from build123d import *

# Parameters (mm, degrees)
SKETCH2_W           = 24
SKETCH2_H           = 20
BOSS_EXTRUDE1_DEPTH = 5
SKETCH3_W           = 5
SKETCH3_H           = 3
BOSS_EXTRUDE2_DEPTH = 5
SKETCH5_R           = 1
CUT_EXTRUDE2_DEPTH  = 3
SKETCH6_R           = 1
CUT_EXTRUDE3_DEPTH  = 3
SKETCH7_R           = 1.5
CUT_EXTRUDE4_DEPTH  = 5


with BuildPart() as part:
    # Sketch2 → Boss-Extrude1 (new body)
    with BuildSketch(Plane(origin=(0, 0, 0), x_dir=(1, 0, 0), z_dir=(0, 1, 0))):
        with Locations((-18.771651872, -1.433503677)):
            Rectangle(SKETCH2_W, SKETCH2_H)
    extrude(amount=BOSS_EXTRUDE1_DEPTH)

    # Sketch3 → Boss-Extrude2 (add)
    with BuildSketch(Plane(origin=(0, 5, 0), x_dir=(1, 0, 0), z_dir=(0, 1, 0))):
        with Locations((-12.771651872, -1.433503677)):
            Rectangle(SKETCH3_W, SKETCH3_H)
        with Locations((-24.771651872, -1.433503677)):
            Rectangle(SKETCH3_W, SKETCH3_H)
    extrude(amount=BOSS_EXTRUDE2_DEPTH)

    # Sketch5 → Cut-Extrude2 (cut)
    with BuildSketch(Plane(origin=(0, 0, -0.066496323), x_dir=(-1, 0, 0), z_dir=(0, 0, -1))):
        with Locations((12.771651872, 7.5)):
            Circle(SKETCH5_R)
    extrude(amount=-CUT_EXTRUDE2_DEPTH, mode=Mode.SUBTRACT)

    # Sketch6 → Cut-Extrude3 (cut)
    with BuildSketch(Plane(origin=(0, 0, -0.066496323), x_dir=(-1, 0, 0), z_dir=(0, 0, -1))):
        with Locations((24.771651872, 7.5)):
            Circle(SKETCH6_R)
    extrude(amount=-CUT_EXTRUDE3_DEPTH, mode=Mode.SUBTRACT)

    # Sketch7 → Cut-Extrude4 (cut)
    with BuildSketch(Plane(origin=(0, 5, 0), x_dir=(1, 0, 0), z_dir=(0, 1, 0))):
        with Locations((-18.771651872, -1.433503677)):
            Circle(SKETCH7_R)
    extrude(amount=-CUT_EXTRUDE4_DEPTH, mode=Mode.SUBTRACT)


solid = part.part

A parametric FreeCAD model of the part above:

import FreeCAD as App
import Part
import Sketcher

V = App.Vector
Q = App.Units.Quantity

doc = App.newDocument("Part")
params = doc.addObject("Spreadsheet::Sheet", "Params")
for row, (alias, value) in enumerate([
    ("sketch1_width", "24 mm"),
    ("sketch1_height", "20 mm"),
    ("pad1_length", "5 mm"),
    ("sketch2_width", "5 mm"),
    ("sketch2_height", "3 mm"),
    ("pad2_length", "5 mm"),
    ("sketch3_diameter", "2 mm"),
    ("pocket1_length", "3 mm"),
    ("sketch4_diameter", "2 mm"),
    ("pocket2_length", "3 mm"),
    ("sketch5_diameter", "3 mm"),
    ("pocket3_length", "5 mm"),
], start=1):
    params.set(f"A{row}", alias)
    params.set(f"B{row}", "=" + value)
    params.setAlias(f"B{row}", alias)

body = doc.addObject("PartDesign::Body", "Body")

# Sketch on XZ plane
sketch1 = doc.addObject("Sketcher::SketchObject", "Sketch")
body.addObject(sketch1)
sketch1.AttachmentSupport = (doc.XZ_Plane, [""])
sketch1.MapMode = "FlatFace"
sketch1.addGeometry([
    Part.LineSegment(V(-31, -9, 0), V(-31, 11, 0)),
    Part.LineSegment(V(-31, 11, 0), V(-7, 11, 0)),
    Part.LineSegment(V(-7, 11, 0), V(-7, -9, 0)),
    Part.LineSegment(V(-7, -9, 0), V(-31, -9, 0)),
], False)
sketch1.addConstraint([
    Sketcher.Constraint("Coincident", 0, 2, 1, 1),
    Sketcher.Constraint("Coincident", 1, 2, 2, 1),
    Sketcher.Constraint("Coincident", 2, 2, 3, 1),
    Sketcher.Constraint("Coincident", 3, 2, 0, 1),
    Sketcher.Constraint("Vertical", 0),
    Sketcher.Constraint("Horizontal", 1),
    Sketcher.Constraint("Vertical", 2),
    Sketcher.Constraint("Horizontal", 3),
    Sketcher.Constraint("DistanceX", 1, 1, 1, 2, Q("24 mm")),
    Sketcher.Constraint("DistanceY", 0, 1, 0, 2, Q("20 mm")),
    Sketcher.Constraint("DistanceX", 0, 2, -1, 1, Q("30.771652 mm")),
    Sketcher.Constraint("DistanceY", -1, 1, 0, 2, Q("11.433504 mm")),
])
sketch1.setExpression("Constraints[8]", "Params.sketch1_width")
sketch1.setExpression("Constraints[9]", "Params.sketch1_height")
pad1 = doc.addObject("PartDesign::Pad", "Pad")
body.addObject(pad1)
pad1.Profile = sketch1
pad1.setExpression("Length", "Params.pad1_length")
pad1.Reversed = True

# Sketch on XZ plane
sketch2 = doc.addObject("Sketcher::SketchObject", "Sketch001")
body.addObject(sketch2)
sketch2.AttachmentSupport = (doc.XZ_Plane, [""])
sketch2.MapMode = "FlatFace"
sketch2.AttachmentOffset = App.Placement(V(0, 0, -5), App.Rotation())
sketch2.addGeometry([
    Part.LineSegment(V(-15.3, -0.1, 0), V(-15.3, 2.9, 0)),  # 0
    Part.LineSegment(V(-15.3, 2.9, 0), V(-10.3, 2.9, 0)),  # 1
    Part.LineSegment(V(-10.3, 2.9, 0), V(-10.3, -0.1, 0)),  # 2
    Part.LineSegment(V(-10.3, -0.1, 0), V(-15.3, -0.1, 0)),  # 3
    Part.LineSegment(V(-27.3, -0.1, 0), V(-27.3, 2.9, 0)),  # 4
    Part.LineSegment(V(-27.3, 2.9, 0), V(-22.3, 2.9, 0)),  # 5
    Part.LineSegment(V(-22.3, 2.9, 0), V(-22.3, -0.1, 0)),  # 6
    Part.LineSegment(V(-22.3, -0.1, 0), V(-27.3, -0.1, 0)),  # 7
], False)
sketch2.addConstraint([
    Sketcher.Constraint("Coincident", 0, 2, 1, 1),
    Sketcher.Constraint("Coincident", 1, 2, 2, 1),
    Sketcher.Constraint("Coincident", 2, 2, 3, 1),
    Sketcher.Constraint("Coincident", 3, 2, 0, 1),
    Sketcher.Constraint("Coincident", 4, 2, 5, 1),
    Sketcher.Constraint("Coincident", 5, 2, 6, 1),
    Sketcher.Constraint("Coincident", 6, 2, 7, 1),
    Sketcher.Constraint("Coincident", 7, 2, 4, 1),
    Sketcher.Constraint("Vertical", 0),
    Sketcher.Constraint("Horizontal", 1),
    Sketcher.Constraint("Vertical", 2),
    Sketcher.Constraint("Horizontal", 3),
    Sketcher.Constraint("Vertical", 4),
    Sketcher.Constraint("Horizontal", 5),
    Sketcher.Constraint("Vertical", 6),
    Sketcher.Constraint("Horizontal", 7),
    Sketcher.Constraint("Horizontal", 1, 2, 4, 2),
    Sketcher.Constraint("Horizontal", 3, 2, 6, 2),
    Sketcher.Constraint("Equal", 3, 5),
    Sketcher.Constraint("DistanceX", 1, 1, 1, 2, Q("5 mm")),
    Sketcher.Constraint("DistanceY", 0, 1, 0, 2, Q("3 mm")),
    Sketcher.Constraint("DistanceX", 4, 2, 0, 2, Q("12 mm")),
    Sketcher.Constraint("DistanceX", 0, 2, -1, 1, Q("15.271652 mm")),
    Sketcher.Constraint("DistanceY", -1, 1, 0, 2, Q("2.933504 mm")),
])
sketch2.setExpression("Constraints[19]", "Params.sketch2_width")
sketch2.setExpression("Constraints[20]", "Params.sketch2_height")
pad2 = doc.addObject("PartDesign::Pad", "Pad001")
body.addObject(pad2)
pad2.Profile = sketch2
pad2.setExpression("Length", "Params.pad2_length")
pad2.Reversed = True

# Sketch on XY plane
sketch3 = doc.addObject("Sketcher::SketchObject", "Sketch002")
body.addObject(sketch3)
sketch3.AttachmentSupport = (doc.XY_Plane, [""])
sketch3.MapMode = "FlatFace"
sketch3.AttachmentOffset = App.Placement(V(0, 0, -0.066496), App.Rotation())
sketch3.addGeometry(Part.Circle(V(-12.8, 7.5, 0), V(0, 0, 1), 1), False)
sketch3.addConstraint([
    Sketcher.Constraint("Diameter", 0, Q("2 mm")),
    Sketcher.Constraint("DistanceY", -1, 1, 0, 3, Q("7.5 mm")),
    Sketcher.Constraint("DistanceX", 0, 3, -1, 1, Q("12.771652 mm")),
])
sketch3.setExpression("Constraints[0]", "Params.sketch3_diameter")
pocket1 = doc.addObject("PartDesign::Pocket", "Pocket")
body.addObject(pocket1)
pocket1.Profile = sketch3
pocket1.setExpression("Length", "Params.pocket1_length")
pocket1.Reversed = True

# Sketch on XY plane
sketch4 = doc.addObject("Sketcher::SketchObject", "Sketch003")
body.addObject(sketch4)
sketch4.AttachmentSupport = (doc.XY_Plane, [""])
sketch4.MapMode = "FlatFace"
sketch4.AttachmentOffset = App.Placement(V(0, 0, -0.066496), App.Rotation())
sketch4.addGeometry(Part.Circle(V(-24.8, 7.5, 0), V(0, 0, 1), 1), False)
sketch4.addConstraint([
    Sketcher.Constraint("Diameter", 0, Q("2 mm")),
    Sketcher.Constraint("DistanceY", -1, 1, 0, 3, Q("7.5 mm")),
    Sketcher.Constraint("DistanceX", 0, 3, -1, 1, Q("24.771652 mm")),
])
sketch4.setExpression("Constraints[0]", "Params.sketch4_diameter")
pocket2 = doc.addObject("PartDesign::Pocket", "Pocket001")
body.addObject(pocket2)
pocket2.Profile = sketch4
pocket2.setExpression("Length", "Params.pocket2_length")
pocket2.Reversed = True

# Sketch on XZ plane
sketch5 = doc.addObject("Sketcher::SketchObject", "Sketch004")
body.addObject(sketch5)
sketch5.AttachmentSupport = (doc.XZ_Plane, [""])
sketch5.MapMode = "FlatFace"
sketch5.AttachmentOffset = App.Placement(V(0, 0, -5), App.Rotation())
sketch5.addGeometry(Part.Circle(V(-18.8, 1.4, 0), V(0, 0, 1), 1.5), False)
sketch5.addConstraint([
    Sketcher.Constraint("Diameter", 0, Q("3 mm")),
    Sketcher.Constraint("DistanceX", 0, 3, -1, 1, Q("18.771652 mm")),
    Sketcher.Constraint("DistanceY", -1, 1, 0, 3, Q("1.433504 mm")),
])
sketch5.setExpression("Constraints[0]", "Params.sketch5_diameter")
pocket3 = doc.addObject("PartDesign::Pocket", "Pocket002")
body.addObject(pocket3)
pocket3.Profile = sketch5
pocket3.setExpression("Length", "Params.pocket3_length")
pocket3.Reversed = True

doc.recompute()
